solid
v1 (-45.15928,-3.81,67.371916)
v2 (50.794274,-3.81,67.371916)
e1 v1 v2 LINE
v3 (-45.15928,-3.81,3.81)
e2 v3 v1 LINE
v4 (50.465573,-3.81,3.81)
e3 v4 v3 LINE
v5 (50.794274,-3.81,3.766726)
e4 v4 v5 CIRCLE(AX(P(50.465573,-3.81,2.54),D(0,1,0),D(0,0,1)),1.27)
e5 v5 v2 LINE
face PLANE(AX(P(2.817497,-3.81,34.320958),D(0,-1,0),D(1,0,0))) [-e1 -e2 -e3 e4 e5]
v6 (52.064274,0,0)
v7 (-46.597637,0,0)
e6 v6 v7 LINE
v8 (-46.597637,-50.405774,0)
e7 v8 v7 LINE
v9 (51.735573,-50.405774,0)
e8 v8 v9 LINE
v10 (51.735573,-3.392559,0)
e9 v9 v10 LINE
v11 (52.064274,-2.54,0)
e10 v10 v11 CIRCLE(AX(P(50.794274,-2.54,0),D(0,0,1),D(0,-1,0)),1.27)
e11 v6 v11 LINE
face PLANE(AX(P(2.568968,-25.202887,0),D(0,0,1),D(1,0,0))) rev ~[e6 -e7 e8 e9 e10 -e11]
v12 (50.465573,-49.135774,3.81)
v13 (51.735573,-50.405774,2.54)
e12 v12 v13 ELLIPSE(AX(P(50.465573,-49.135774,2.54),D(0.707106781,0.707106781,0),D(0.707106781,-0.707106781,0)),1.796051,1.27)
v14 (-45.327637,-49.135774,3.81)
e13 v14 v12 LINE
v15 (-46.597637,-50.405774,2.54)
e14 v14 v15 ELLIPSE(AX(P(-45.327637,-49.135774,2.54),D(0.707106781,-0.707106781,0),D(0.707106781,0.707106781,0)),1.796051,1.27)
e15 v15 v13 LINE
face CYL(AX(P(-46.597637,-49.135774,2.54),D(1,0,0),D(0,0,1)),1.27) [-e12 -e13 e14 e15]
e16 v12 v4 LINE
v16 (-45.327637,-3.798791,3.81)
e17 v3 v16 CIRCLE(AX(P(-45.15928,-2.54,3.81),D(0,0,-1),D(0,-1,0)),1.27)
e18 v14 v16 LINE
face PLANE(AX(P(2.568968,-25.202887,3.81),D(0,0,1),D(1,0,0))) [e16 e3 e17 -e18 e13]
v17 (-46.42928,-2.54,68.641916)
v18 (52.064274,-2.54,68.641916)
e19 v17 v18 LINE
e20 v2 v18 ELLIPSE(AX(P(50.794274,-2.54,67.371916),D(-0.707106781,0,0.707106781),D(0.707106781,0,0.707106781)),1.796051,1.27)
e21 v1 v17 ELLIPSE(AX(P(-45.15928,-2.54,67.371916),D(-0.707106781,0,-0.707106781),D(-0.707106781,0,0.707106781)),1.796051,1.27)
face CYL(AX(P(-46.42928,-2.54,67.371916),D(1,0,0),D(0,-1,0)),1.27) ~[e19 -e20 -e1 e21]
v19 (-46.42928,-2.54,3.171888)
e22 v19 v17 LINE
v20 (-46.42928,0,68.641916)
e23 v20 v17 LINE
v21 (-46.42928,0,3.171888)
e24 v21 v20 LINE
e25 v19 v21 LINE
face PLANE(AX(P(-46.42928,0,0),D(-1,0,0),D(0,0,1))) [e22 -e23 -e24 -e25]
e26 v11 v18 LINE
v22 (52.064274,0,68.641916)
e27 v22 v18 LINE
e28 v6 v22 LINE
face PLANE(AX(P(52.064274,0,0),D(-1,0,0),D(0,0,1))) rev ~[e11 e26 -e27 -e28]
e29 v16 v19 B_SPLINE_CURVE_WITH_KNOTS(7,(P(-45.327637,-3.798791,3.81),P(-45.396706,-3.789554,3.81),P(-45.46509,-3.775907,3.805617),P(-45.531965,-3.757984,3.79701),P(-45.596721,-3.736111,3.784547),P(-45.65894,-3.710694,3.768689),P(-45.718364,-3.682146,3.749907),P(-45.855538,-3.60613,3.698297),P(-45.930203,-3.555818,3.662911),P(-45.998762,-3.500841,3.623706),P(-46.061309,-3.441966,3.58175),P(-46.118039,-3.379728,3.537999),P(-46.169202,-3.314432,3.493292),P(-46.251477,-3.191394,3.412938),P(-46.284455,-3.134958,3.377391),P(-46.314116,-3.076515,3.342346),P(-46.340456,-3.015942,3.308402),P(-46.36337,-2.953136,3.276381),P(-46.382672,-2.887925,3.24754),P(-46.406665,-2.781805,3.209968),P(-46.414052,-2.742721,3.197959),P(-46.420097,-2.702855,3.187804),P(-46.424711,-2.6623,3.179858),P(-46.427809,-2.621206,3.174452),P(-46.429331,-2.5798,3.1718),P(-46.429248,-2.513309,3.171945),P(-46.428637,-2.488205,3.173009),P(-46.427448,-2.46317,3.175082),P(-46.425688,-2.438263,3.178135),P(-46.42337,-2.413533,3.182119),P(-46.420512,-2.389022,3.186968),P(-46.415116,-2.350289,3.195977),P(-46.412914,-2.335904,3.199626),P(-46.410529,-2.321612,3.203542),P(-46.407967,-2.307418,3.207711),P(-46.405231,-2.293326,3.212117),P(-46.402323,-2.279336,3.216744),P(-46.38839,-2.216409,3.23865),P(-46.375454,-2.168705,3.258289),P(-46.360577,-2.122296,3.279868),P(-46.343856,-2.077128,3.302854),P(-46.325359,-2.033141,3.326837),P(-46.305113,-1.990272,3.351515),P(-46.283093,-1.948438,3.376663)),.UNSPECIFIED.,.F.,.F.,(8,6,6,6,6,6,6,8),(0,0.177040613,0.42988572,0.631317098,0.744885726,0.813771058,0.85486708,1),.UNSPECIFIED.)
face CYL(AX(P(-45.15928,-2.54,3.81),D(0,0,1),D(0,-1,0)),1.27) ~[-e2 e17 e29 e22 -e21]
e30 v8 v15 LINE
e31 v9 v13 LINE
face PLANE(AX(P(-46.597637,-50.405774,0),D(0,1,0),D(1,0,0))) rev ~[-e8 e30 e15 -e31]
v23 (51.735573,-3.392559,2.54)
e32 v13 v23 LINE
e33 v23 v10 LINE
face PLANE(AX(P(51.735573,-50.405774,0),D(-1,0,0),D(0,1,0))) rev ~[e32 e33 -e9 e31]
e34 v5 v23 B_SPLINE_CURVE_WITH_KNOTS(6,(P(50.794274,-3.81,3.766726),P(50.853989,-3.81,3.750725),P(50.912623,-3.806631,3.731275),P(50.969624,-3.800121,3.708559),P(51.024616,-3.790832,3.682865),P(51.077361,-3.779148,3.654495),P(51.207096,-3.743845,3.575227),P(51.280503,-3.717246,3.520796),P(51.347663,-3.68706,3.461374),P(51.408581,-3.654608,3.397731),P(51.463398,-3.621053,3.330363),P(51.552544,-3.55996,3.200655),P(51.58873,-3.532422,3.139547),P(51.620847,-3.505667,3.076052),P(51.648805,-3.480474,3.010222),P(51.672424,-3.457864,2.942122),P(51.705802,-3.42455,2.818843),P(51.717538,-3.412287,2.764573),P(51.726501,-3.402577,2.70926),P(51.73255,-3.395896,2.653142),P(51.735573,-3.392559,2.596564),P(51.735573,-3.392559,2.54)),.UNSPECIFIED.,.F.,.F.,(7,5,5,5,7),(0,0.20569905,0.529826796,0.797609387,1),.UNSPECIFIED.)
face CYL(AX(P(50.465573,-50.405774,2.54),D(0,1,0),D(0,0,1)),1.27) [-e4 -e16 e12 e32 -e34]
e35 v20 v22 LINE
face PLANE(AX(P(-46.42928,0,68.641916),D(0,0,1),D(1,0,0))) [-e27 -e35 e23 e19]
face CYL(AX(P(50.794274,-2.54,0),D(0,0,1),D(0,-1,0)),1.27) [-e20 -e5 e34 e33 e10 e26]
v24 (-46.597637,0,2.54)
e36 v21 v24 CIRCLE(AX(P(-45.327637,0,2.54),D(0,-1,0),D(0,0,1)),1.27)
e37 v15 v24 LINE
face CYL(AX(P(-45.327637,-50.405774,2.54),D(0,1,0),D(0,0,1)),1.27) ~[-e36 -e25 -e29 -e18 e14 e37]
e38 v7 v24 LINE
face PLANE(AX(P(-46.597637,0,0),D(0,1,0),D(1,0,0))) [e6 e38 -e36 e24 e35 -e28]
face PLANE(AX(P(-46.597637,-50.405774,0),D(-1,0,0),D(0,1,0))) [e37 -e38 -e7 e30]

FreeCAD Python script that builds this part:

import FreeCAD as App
import Part
import Sketcher
from FreeCAD import Vector
Q = App.Units.Quantity


def edges_at(feature, points):
    """Names of the edges that pass closest to the given points."""
    edges = feature.Shape.Edges
    near = lambda p: min(range(len(edges)), key=lambda i: edges[i].distToShape(Part.Vertex(*p))[0])
    return sorted({f"Edge{near(p) + 1}" for p in points})


def add_polygon(sketch, points):
    """Adds a closed chain of lines whose ends are joined by coincident constraints."""
    first, n = sketch.GeometryCount, len(points)
    for a, b in zip(points, points[1:] + points[:1]):
        sketch.addGeometry(Part.LineSegment(App.Vector(*a, 0), App.Vector(*b, 0)), False)
    for i in range(n):
        sketch.addConstraint(Sketcher.Constraint("Coincident", first + i, 2, first + (i + 1) % n, 1))

doc = App.newDocument("Part")
body = doc.addObject("PartDesign::Body", "Body")

# Sketch on XZ plane
sketch1 = doc.addObject("Sketcher::SketchObject", "Sketch")
body.addObject(sketch1)
sketch1.AttachmentSupport = (doc.XZ_Plane, [""])
sketch1.MapMode = "FlatFace"
add_polygon(sketch1, [(-46.42928, 68.641916), (-46.42928, 0), (52.064274, 0), (52.064274, 68.641916)])  # lines 0-3
sketch1.addConstraint([
    Sketcher.Constraint("Vertical", 0),
    Sketcher.Constraint("Horizontal", 1),
    Sketcher.Constraint("Vertical", 2),
    Sketcher.Constraint("Horizontal", 3),
    Sketcher.Constraint("PointOnObject", 0, 2, -1),
    Sketcher.Constraint("DistanceX", 1, 1, 1, 2, Q("98.493554 mm")),
    Sketcher.Constraint("DistanceY", 0, 2, 0, 1, Q("68.641916 mm")),
    Sketcher.Constraint("DistanceX", 0, 2, -1, 1, Q("46.42928 mm")),
])
pad1 = doc.addObject("PartDesign::Pad", "Pad")
body.addObject(pad1)
pad1.Profile = sketch1
pad1.Length = Q("0.15 in")

# Sketch on XY plane
sketch2 = doc.addObject("Sketcher::SketchObject", "Sketch001")
body.addObject(sketch2)
sketch2.AttachmentSupport = (doc.XY_Plane, [""])
sketch2.MapMode = "FlatFace"
add_polygon(sketch2, [(-46.597637, 0), (-46.597637, -50.405774), (51.735573, -50.405774), (51.735573, 0)])  # lines 0-3
sketch2.addConstraint([
    Sketcher.Constraint("Vertical", 0),
    Sketcher.Constraint("Horizontal", 1),
    Sketcher.Constraint("Vertical", 2),
    Sketcher.Constraint("Horizontal", 3),
    Sketcher.Constraint("PointOnObject", 2, 2, -1),
    Sketcher.Constraint("DistanceX", 1, 1, 1, 2, Q("98.33321 mm")),
    Sketcher.Constraint("DistanceY", 0, 2, 0, 1, Q("50.405774 mm")),
    Sketcher.Constraint("DistanceX", 0, 2, -1, 1, Q("46.597637 mm")),
])
pad2 = doc.addObject("PartDesign::Pad", "Pad001")
body.addObject(pad2)
pad2.Profile = sketch2
pad2.Length = Q("0.15 in")
doc.recompute()

fillet = doc.addObject("PartDesign::Fillet", "Fillet")
body.addObject(fillet)
fillet.Base = (pad2, edges_at(pad2, [(-46.429, -3.81, 36.226), (2.817, -3.81, 68.642), (52.064, -3.81, 34.321)]))
fillet.Radius = Q("0.05 in")
doc.recompute()

fillet2 = doc.addObject("PartDesign::Fillet", "Fillet001")
body.addObject(fillet2)
fillet2.Base = (fillet, edges_at(fillet, [(2.569, -50.406, 3.81), (51.736, -26.899, 3.81), (-46.598, -25.203, 3.81)]))
fillet2.Radius = Q("0.05 in")

doc.recompute()
